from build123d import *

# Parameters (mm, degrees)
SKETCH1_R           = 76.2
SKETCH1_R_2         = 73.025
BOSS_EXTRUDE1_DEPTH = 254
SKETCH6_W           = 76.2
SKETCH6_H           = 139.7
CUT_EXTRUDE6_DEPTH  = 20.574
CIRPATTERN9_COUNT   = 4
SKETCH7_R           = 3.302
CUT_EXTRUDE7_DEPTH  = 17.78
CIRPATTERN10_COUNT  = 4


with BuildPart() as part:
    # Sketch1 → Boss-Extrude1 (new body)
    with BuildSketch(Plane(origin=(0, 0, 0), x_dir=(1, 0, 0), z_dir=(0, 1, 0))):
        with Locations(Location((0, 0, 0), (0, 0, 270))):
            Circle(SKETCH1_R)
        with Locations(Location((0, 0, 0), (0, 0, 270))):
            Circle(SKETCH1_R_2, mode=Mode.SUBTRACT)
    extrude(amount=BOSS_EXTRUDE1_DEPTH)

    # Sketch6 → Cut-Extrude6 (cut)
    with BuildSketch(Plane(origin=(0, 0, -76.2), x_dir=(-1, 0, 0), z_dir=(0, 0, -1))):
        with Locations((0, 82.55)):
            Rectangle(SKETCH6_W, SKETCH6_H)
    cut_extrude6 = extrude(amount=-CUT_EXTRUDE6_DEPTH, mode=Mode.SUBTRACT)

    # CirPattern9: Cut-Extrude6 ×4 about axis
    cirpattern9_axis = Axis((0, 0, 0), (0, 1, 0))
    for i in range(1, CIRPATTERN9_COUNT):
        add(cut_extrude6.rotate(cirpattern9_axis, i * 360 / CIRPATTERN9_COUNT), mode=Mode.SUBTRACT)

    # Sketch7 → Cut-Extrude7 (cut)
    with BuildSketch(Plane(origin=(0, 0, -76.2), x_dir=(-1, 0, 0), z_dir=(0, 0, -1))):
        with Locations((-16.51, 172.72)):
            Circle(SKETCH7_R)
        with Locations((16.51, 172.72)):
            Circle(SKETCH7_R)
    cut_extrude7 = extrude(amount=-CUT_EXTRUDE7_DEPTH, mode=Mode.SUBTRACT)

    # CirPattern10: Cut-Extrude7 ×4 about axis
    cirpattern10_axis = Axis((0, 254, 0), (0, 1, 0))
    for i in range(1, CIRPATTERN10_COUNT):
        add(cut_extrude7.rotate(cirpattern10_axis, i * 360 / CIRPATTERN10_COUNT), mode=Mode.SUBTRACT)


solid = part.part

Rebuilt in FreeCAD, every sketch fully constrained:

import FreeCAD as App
import Part
import Sketcher

V = App.Vector
Q = App.Units.Quantity


def add_polygon(sketch, points):
    """Adds a closed chain of lines whose ends are joined by coincident constraints."""
    first, n = sketch.GeometryCount, len(points)
    for a, b in zip(points, points[1:] + points[:1]):
        sketch.addGeometry(Part.LineSegment(App.Vector(*a, 0), App.Vector(*b, 0)), False)
    for i in range(n):
        sketch.addConstraint(Sketcher.Constraint("Coincident", first + i, 2, first + (i + 1) % n, 1))

doc = App.newDocument("Part")
body = doc.addObject("PartDesign::Body", "Body")

# Sketch on XZ plane
sketch1 = body.newObject("Sketcher::SketchObject", "Sketch")
sketch1.AttachmentSupport = (doc.getObject("XZ_Plane"), [""])
sketch1.MapMode = "FlatFace"
sketch1.addGeometry([
    Part.Circle(V(0, 0, 0), V(0, 0, 1), 76),
    Part.Circle(V(0, 0, 0), V(0, 0, 1), 73),
], False)
sketch1.addConstraint([
    Sketcher.Constraint("Coincident", 0, 3, -1, 1),
    Sketcher.Constraint("Coincident", 1, 3, -1, 1),
    Sketcher.Constraint("Diameter", 0, Q("6 in")),
    Sketcher.Constraint("Diameter", 1, Q("5.75 in")),
])
pad1 = body.newObject("PartDesign::Pad", "Pad")
pad1.Profile = sketch1
pad1.Length = Q("10 in")
pad1.Reversed = True

# Sketch on XY plane
sketch2 = body.newObject("Sketcher::SketchObject", "Sketch001")
sketch2.AttachmentSupport = (doc.getObject("XY_Plane"), [""])
sketch2.MapMode = "FlatFace"
sketch2.AttachmentOffset = App.Placement(V(0, 0, -3 * 25.4), App.Rotation())
add_polygon(sketch2, [(38, 152), (38, 13), (-38, 13), (-38, 152)])  # lines 0-3
sketch2.addConstraint([
    Sketcher.Constraint("Vertical", 0),
    Sketcher.Constraint("Horizontal", 1),
    Sketcher.Constraint("Vertical", 2),
    Sketcher.Constraint("Horizontal", 3),
    Sketcher.Constraint("DistanceX", 1, 2, 1, 1, Q("3 in")),
    Sketcher.Constraint("DistanceY", 0, 2, 0, 1, Q("5.5 in")),
    Sketcher.Constraint("DistanceY", -1, 1, 2, 2, Q("6 in")),
    Sketcher.Constraint("DistanceX", -1, 1, 0, 2, Q("1.5 in")),
])
pocket1 = body.newObject("PartDesign::Pocket", "Pocket")
pocket1.Profile = sketch2
pocket1.Length = Q("0.81 in")
pocket1.Reversed = True
doc.recompute()

polarpattern = body.newObject("PartDesign::PolarPattern", "PolarPattern")
polarpattern.Originals = [pocket1]
polarpattern.Axis = (doc.getObject("Y_Axis"), [""])
polarpattern.Angle = 360
polarpattern.Occurrences = 4
body.Tip = polarpattern

# Sketch on XY plane
sketch3 = body.newObject("Sketcher::SketchObject", "Sketch002")
sketch3.AttachmentSupport = (doc.getObject("XY_Plane"), [""])
sketch3.MapMode = "FlatFace"
sketch3.AttachmentOffset = App.Placement(V(0, 0, -3 * 25.4), App.Rotation())
sketch3.addGeometry([
    Part.Circle(V(16.5, 172.7, 0), V(0, 0, 1), 3.3),
    Part.Circle(V(-16.5, 172.7, 0), V(0, 0, 1), 3.3),
], False)
sketch3.addConstraint([
    Sketcher.Constraint("Equal", 0, 1),
    Sketcher.Constraint("Symmetric", 0, 3, 1, 3, -2),
    Sketcher.Constraint("Diameter", 0, Q("0.26 in")),
    Sketcher.Constraint("DistanceY", -1, 1, 0, 3, Q("6.8 in")),
    Sketcher.Constraint("DistanceX", 1, 3, 0, 3, Q("1.3 in")),
])
pocket2 = body.newObject("PartDesign::Pocket", "Pocket001")
pocket2.Profile = sketch3
pocket2.Length = Q("0.7 in")
pocket2.Reversed = True
doc.recompute()

polarpattern2 = body.newObject("PartDesign::PolarPattern", "PolarPattern001")
polarpattern2.Originals = [pocket2]
polarpattern2.Axis = (doc.getObject("Y_Axis"), [""])
polarpattern2.Angle = 360
polarpattern2.Occurrences = 4
body.Tip = polarpattern2

doc.recompute()
